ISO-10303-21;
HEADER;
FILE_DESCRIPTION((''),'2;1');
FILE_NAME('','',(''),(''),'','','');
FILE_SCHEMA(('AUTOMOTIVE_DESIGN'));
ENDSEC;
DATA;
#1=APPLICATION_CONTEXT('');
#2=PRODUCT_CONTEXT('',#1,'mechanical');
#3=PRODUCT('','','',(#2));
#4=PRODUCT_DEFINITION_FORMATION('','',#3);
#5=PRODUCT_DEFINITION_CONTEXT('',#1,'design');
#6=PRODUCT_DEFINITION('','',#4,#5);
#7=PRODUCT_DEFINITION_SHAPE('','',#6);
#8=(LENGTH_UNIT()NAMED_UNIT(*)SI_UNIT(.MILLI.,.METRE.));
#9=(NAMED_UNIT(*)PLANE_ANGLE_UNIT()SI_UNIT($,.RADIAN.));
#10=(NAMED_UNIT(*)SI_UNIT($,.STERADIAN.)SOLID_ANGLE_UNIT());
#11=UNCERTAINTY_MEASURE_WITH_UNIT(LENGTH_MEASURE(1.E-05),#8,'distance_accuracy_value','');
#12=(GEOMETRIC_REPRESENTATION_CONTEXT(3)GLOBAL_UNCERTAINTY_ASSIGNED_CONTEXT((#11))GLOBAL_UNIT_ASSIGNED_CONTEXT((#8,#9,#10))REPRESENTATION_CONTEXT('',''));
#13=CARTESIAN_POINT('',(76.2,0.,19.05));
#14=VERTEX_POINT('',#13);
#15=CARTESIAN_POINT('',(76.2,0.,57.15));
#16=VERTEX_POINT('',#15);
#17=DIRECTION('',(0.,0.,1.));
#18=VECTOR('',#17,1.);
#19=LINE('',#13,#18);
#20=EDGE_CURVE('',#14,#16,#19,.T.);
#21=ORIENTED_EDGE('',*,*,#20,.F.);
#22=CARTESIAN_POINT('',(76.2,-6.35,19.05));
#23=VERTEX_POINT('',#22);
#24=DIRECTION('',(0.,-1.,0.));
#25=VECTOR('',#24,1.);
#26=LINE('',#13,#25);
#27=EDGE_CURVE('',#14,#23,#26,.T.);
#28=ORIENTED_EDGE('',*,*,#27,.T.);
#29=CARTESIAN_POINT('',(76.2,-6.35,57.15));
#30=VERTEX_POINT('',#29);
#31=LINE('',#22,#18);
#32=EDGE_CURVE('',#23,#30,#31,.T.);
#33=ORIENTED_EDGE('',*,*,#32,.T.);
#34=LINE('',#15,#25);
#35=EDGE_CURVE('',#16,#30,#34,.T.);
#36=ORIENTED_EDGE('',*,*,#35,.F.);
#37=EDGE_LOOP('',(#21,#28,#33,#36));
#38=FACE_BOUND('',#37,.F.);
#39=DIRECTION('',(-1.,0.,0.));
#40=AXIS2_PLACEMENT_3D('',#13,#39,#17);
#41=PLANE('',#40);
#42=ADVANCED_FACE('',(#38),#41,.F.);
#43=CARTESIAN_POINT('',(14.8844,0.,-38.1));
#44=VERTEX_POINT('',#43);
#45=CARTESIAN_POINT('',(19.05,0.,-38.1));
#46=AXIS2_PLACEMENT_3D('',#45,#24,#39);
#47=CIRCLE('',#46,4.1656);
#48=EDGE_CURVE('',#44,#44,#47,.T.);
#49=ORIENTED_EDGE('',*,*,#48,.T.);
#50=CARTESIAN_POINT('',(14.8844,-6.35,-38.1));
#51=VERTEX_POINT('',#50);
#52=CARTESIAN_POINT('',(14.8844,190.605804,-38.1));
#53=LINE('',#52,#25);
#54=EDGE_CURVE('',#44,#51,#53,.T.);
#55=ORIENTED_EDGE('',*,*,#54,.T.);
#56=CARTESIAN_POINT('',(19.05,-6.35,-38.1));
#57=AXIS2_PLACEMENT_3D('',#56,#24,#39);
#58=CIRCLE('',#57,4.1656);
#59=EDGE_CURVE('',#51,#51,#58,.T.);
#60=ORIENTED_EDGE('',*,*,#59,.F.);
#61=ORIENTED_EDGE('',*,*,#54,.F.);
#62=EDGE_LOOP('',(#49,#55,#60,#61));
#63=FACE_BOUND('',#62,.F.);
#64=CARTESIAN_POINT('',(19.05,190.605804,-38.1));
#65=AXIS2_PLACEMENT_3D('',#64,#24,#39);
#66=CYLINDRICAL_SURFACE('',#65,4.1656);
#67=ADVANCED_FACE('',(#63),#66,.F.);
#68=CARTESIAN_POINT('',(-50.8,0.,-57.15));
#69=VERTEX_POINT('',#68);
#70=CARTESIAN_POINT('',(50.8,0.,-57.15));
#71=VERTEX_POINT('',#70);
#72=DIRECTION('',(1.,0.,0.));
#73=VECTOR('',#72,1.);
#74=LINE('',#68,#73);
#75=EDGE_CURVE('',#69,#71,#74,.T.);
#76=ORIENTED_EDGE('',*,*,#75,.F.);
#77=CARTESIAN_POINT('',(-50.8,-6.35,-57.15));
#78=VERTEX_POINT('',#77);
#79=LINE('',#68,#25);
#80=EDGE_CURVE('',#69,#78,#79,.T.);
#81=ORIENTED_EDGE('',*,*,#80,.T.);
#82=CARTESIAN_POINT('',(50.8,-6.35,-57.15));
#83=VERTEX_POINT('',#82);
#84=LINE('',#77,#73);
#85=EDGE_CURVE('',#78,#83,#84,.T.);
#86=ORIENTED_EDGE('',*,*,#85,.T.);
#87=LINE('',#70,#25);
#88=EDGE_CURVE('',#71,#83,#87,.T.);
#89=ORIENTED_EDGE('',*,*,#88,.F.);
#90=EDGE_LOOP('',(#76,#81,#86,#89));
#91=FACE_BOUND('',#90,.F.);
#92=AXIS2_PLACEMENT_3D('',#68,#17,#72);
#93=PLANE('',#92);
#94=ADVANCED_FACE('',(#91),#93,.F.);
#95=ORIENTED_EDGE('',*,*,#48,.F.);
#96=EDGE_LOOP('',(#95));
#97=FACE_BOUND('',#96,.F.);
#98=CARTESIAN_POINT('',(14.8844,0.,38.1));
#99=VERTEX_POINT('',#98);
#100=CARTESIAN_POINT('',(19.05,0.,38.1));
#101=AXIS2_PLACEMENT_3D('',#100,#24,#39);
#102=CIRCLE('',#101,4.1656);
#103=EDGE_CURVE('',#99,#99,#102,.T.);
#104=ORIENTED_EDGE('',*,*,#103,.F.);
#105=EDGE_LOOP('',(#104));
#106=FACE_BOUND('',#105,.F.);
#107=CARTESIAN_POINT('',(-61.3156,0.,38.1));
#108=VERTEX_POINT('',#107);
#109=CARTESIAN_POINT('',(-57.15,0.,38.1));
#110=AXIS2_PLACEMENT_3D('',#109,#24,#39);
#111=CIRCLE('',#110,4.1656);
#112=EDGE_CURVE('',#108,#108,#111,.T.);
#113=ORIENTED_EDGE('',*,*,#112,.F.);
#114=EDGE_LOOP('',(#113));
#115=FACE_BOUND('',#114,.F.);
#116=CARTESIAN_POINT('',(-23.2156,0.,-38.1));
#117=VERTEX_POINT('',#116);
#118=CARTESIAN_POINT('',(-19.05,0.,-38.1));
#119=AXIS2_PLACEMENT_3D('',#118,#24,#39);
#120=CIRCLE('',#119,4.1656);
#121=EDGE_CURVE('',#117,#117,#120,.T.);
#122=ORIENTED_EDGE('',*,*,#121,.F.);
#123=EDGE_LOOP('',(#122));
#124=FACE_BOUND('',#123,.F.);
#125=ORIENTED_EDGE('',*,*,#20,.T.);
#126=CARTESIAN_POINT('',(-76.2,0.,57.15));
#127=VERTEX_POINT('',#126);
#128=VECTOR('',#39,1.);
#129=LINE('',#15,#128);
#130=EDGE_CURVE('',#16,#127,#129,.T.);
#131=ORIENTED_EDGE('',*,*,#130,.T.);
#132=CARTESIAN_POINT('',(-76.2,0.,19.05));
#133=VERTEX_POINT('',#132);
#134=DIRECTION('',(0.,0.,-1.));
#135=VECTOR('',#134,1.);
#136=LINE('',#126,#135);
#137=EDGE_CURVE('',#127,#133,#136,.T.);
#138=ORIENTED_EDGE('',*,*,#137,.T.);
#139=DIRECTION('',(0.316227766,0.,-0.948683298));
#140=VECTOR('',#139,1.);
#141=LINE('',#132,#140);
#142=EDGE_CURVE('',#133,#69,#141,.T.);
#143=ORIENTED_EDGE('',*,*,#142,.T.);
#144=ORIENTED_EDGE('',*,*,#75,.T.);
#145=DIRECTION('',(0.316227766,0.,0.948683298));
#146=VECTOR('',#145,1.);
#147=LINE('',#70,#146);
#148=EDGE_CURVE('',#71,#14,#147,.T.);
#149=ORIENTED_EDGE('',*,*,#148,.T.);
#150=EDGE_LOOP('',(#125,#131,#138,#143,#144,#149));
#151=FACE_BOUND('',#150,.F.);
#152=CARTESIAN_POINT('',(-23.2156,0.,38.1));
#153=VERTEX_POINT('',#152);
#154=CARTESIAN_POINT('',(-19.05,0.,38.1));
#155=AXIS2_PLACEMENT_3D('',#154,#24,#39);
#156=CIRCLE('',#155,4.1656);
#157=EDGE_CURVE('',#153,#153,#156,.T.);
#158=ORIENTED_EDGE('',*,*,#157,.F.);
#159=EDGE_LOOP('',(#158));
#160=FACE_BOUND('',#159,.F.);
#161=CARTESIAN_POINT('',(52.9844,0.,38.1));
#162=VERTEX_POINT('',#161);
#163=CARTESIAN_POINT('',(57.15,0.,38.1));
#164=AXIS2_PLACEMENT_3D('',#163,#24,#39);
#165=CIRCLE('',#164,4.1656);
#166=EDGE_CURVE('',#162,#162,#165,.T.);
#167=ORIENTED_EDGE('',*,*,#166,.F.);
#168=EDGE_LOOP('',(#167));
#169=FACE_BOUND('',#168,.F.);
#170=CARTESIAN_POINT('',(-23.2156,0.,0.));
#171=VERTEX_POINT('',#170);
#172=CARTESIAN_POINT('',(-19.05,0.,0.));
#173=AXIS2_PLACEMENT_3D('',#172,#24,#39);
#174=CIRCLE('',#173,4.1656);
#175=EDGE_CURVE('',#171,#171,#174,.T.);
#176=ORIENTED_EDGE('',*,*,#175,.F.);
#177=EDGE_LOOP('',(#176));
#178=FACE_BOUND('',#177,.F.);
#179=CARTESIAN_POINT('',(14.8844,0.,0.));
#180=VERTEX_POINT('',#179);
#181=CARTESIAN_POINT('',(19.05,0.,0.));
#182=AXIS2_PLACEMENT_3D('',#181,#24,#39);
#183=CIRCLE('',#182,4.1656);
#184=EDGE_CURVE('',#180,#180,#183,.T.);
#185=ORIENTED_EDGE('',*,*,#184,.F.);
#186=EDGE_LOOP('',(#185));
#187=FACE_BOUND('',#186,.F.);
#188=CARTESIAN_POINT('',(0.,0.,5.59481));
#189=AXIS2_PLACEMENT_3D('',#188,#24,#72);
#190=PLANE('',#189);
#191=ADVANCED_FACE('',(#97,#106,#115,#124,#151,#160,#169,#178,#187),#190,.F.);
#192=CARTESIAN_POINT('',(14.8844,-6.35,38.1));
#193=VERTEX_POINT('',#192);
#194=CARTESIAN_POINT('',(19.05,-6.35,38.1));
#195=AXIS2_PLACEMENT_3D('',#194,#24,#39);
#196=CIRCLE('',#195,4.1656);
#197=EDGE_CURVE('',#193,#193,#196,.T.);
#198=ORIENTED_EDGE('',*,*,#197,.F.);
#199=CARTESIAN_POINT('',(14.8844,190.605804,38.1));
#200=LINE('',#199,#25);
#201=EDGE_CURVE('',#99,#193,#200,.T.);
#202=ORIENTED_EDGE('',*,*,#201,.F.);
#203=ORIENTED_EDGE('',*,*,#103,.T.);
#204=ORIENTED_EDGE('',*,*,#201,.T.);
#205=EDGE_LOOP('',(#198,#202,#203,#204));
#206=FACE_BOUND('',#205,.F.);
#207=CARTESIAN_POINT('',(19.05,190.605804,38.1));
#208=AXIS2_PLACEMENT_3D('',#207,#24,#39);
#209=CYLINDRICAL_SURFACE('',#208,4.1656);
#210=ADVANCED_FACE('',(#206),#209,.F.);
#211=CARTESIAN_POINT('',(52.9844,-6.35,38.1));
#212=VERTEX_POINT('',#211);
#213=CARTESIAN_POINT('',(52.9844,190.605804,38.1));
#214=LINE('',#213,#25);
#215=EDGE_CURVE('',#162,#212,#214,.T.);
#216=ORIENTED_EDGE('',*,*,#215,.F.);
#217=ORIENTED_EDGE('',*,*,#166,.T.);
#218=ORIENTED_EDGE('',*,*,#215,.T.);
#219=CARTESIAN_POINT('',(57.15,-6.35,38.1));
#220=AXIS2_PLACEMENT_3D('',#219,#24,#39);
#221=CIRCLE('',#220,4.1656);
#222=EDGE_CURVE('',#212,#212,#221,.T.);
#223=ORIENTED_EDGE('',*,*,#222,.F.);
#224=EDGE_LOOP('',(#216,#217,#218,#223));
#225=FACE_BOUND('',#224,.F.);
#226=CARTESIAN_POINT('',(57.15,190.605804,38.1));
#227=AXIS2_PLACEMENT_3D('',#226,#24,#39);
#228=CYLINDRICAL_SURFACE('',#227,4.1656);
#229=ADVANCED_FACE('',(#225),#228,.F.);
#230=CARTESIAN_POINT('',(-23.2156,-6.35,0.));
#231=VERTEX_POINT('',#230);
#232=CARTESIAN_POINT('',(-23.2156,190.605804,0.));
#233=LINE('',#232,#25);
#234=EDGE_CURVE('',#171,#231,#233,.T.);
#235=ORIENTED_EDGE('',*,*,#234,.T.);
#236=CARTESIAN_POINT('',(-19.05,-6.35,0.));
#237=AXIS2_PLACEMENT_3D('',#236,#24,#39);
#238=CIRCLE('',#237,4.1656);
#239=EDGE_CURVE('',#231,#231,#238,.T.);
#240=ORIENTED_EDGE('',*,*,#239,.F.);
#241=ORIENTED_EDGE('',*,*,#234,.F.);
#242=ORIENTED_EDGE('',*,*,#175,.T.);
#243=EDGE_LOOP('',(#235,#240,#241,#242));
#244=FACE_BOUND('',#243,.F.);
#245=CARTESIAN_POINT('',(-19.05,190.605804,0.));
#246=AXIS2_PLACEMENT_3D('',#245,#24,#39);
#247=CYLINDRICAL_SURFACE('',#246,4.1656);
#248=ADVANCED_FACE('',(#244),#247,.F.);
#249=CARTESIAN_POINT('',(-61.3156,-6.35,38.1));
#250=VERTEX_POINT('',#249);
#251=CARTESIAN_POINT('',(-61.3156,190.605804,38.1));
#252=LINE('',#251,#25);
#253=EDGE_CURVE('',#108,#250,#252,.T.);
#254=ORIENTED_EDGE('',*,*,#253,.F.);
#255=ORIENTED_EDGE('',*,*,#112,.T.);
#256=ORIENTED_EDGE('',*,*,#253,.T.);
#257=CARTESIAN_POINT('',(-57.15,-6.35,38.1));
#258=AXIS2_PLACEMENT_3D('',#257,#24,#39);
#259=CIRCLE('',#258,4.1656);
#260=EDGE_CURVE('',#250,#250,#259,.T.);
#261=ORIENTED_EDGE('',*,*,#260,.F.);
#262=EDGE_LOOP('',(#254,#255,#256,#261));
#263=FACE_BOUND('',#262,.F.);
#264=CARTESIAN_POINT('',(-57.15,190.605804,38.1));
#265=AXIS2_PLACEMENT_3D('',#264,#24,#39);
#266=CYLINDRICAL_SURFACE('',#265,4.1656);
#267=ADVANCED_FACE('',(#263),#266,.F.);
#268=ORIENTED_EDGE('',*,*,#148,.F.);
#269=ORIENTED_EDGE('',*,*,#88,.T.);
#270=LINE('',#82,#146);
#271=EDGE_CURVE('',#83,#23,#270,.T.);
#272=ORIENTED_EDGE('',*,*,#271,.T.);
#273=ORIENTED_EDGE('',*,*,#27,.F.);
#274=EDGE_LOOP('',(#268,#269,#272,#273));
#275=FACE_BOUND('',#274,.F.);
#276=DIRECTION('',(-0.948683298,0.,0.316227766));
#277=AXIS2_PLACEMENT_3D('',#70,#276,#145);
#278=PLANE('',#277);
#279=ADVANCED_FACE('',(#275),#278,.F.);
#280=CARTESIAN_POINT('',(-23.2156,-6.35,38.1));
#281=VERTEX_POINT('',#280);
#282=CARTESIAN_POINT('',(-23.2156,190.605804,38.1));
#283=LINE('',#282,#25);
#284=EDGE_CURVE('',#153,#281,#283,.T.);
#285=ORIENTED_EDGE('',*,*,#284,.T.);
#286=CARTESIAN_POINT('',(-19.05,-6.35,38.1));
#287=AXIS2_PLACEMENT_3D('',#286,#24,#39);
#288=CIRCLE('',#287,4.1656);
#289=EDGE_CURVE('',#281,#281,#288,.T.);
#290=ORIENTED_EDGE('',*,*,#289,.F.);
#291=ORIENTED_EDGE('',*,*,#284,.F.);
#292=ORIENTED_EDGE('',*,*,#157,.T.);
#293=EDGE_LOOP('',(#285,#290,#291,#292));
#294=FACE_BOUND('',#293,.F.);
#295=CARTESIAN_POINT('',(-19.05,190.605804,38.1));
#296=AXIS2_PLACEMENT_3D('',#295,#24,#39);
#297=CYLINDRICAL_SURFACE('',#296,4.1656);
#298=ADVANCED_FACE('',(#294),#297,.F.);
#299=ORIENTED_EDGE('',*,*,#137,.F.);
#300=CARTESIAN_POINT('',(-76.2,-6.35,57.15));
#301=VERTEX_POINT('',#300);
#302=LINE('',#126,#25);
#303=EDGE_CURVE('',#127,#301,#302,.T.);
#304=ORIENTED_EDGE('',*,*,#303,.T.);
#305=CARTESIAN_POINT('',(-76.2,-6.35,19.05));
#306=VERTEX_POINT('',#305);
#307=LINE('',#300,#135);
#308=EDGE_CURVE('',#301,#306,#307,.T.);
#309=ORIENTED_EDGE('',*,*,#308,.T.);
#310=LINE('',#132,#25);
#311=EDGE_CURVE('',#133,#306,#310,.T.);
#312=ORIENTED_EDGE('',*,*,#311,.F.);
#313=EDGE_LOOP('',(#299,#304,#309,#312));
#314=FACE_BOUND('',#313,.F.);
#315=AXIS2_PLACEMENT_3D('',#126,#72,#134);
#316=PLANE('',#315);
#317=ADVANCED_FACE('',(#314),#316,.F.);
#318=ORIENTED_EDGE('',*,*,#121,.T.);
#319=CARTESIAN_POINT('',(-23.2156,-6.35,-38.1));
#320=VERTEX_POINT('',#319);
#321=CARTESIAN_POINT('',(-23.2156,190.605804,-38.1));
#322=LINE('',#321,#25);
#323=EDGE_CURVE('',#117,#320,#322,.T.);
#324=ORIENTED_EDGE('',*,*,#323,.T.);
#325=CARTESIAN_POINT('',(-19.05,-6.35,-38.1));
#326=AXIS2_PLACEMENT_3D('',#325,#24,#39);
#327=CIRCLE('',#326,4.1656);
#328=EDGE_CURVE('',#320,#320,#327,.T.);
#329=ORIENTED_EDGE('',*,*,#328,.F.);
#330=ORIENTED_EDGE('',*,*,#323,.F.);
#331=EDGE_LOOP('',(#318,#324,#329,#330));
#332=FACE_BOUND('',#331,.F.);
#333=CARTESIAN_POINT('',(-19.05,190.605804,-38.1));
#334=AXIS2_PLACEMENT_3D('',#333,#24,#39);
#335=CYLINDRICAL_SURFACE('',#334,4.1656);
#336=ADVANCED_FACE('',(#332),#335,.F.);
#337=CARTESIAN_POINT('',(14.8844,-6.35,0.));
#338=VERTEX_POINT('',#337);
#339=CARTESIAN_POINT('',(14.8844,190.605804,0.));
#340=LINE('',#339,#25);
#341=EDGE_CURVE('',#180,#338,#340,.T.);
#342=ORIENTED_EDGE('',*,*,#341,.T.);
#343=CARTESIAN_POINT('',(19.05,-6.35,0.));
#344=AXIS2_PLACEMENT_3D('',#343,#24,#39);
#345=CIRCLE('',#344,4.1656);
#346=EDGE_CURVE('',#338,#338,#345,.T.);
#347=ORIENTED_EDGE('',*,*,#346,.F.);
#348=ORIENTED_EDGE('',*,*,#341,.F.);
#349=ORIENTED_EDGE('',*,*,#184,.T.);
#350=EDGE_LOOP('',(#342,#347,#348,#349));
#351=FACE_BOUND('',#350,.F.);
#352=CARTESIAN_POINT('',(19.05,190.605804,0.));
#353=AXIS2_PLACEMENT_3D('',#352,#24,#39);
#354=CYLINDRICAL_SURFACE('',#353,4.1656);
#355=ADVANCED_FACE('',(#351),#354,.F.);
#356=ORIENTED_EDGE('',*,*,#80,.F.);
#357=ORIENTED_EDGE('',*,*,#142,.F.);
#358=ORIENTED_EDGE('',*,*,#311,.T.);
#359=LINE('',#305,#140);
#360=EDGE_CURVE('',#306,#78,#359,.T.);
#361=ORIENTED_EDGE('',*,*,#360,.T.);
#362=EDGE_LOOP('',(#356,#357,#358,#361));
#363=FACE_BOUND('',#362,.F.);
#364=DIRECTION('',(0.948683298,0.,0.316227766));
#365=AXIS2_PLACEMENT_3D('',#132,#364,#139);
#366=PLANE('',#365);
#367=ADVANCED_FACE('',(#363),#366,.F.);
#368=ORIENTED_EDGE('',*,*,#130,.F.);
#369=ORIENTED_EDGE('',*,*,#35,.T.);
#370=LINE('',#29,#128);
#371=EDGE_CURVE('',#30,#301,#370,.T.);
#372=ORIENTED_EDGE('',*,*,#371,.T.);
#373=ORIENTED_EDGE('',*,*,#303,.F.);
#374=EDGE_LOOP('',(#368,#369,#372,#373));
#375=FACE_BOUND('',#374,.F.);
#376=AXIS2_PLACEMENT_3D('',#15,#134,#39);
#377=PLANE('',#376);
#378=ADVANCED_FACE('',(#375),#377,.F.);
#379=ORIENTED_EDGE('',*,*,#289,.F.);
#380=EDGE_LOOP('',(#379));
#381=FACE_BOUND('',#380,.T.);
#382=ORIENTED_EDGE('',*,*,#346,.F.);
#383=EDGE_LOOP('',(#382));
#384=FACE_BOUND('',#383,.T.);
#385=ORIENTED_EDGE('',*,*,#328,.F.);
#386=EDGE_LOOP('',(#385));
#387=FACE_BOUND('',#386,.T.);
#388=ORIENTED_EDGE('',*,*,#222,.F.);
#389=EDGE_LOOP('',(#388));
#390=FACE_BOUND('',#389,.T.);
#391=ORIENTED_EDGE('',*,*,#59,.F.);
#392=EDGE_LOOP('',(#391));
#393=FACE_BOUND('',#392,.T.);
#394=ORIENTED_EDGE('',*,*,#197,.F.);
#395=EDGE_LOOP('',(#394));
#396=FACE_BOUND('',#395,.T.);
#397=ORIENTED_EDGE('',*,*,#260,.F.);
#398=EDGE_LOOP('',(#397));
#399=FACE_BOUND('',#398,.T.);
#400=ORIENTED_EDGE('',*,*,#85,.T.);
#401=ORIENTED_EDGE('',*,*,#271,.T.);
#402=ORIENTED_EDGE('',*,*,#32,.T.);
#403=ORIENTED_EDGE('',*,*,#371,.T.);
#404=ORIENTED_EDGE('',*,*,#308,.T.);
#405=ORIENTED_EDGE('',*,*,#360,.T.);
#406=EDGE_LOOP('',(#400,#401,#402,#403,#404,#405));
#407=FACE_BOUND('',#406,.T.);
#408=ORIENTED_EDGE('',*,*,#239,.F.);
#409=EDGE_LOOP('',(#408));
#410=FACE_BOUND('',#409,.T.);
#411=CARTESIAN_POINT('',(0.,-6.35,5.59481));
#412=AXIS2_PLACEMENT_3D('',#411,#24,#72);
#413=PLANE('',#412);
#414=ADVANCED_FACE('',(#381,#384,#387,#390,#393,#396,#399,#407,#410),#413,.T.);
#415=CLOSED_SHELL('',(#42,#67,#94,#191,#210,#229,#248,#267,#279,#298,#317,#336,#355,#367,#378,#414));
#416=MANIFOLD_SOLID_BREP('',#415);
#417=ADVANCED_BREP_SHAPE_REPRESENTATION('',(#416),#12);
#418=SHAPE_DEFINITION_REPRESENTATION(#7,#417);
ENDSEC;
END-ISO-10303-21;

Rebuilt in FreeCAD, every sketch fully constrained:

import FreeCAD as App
import Part
import Sketcher

V = App.Vector
Q = App.Units.Quantity


def add_polygon(sketch, points):
    """Adds a closed chain of lines whose ends are joined by coincident constraints."""
    first, n = sketch.GeometryCount, len(points)
    for a, b in zip(points, points[1:] + points[:1]):
        sketch.addGeometry(Part.LineSegment(App.Vector(*a, 0), App.Vector(*b, 0)), False)
    for i in range(n):
        sketch.addConstraint(Sketcher.Constraint("Coincident", first + i, 2, first + (i + 1) % n, 1))

doc = App.newDocument("Part")
body = doc.addObject("PartDesign::Body", "Body")

sketch1 = body.newObject("Sketcher::SketchObject", "Sketch")
sketch1.AttachmentSupport = (doc.getObject("XZ_Plane"), [""])
sketch1.MapMode = "FlatFace"
add_polygon(sketch1, [(76, 57), (-76, 57), (-76, 19), (-51, -57), (51, -57), (76, 19)])
sketch1.addConstraint([
    Sketcher.Constraint("Horizontal", 0),
    Sketcher.Constraint("Vertical", 1),
    Sketcher.Constraint("Horizontal", 3),
    Sketcher.Constraint("Vertical", 5),
    Sketcher.Constraint("Symmetric", 1, 2, 4, 2, -2),
    Sketcher.Constraint("Equal", 2, 4),
    Sketcher.Constraint("DistanceX", 0, 2, 0, 1, Q("6 in")),
    Sketcher.Constraint("DistanceX", 3, 1, 3, 2, Q("4 in")),
    Sketcher.Constraint("DistanceY", 1, 2, 1, 1, Q("1.5 in")),
    Sketcher.Constraint("DistanceY", 2, 2, 1, 2, Q("3 in")),
    Sketcher.Constraint("DistanceY", -1, 1, 0, 2, Q("2.25 in")),
])
pad1 = body.newObject("PartDesign::Pad", "Pad")
pad1.Profile = sketch1
pad1.Length = Q("0.25 in")

sketch2 = body.newObject("Sketcher::SketchObject", "Sketch001")
sketch2.AttachmentSupport = (doc.getObject("XZ_Plane"), [""])
sketch2.MapMode = "FlatFace"
sketch2.addGeometry(Part.Circle(V(57.1, 38.1, 0), V(0, 0, 1), 4.2), False)
sketch2.addConstraint([
    Sketcher.Constraint("Diameter", 0, Q("0.328 in")),
    Sketcher.Constraint("DistanceY", -1, 1, 0, 3, Q("1.5 in")),
    Sketcher.Constraint("DistanceX", -1, 1, 0, 3, Q("2.25 in")),
])
doc.recompute()
hole = body.newObject("PartDesign::Hole", "Hole")
hole.Profile = sketch2
hole.ThreadType = "None"
hole.Diameter = Q("0.328 in")
hole.DepthType = "ThroughAll"
hole.Reversed = True

sketch3 = body.newObject("Sketcher::SketchObject", "Sketch002")
sketch3.AttachmentSupport = (doc.getObject("XZ_Plane"), [""])
sketch3.MapMode = "FlatFace"
sketch3.addGeometry(Part.Circle(V(19.1, 38.1, 0), V(0, 0, 1), 4.2), False)
sketch3.addConstraint([
    Sketcher.Constraint("Diameter", 0, Q("0.328 in")),
    Sketcher.Constraint("DistanceY", -1, 1, 0, 3, Q("1.5 in")),
    Sketcher.Constraint("DistanceX", -1, 1, 0, 3, Q("0.75 in")),
])
doc.recompute()
hole2 = body.newObject("PartDesign::Hole", "Hole001")
hole2.Profile = sketch3
hole2.ThreadType = "None"
hole2.Diameter = Q("0.328 in")
hole2.DepthType = "ThroughAll"
hole2.Reversed = True

sketch4 = body.newObject("Sketcher::SketchObject", "Sketch003")
sketch4.AttachmentSupport = (doc.getObject("XZ_Plane"), [""])
sketch4.MapMode = "FlatFace"
sketch4.addGeometry(Part.Circle(V(-19.1, 38.1, 0), V(0, 0, 1), 4.2), False)
sketch4.addConstraint([
    Sketcher.Constraint("Diameter", 0, Q("0.328 in")),
    Sketcher.Constraint("DistanceY", -1, 1, 0, 3, Q("1.5 in")),
    Sketcher.Constraint("DistanceX", 0, 3, -1, 1, Q("0.75 in")),
])
doc.recompute()
hole3 = body.newObject("PartDesign::Hole", "Hole002")
hole3.Profile = sketch4
hole3.ThreadType = "None"
hole3.Diameter = Q("0.328 in")
hole3.DepthType = "ThroughAll"
hole3.Reversed = True

sketch5 = body.newObject("Sketcher::SketchObject", "Sketch004")
sketch5.AttachmentSupport = (doc.getObject("XZ_Plane"), [""])
sketch5.MapMode = "FlatFace"
sketch5.addGeometry(Part.Circle(V(-57.1, 38.1, 0), V(0, 0, 1), 4.2), False)
sketch5.addConstraint([
    Sketcher.Constraint("Diameter", 0, Q("0.328 in")),
    Sketcher.Constraint("DistanceY", -1, 1, 0, 3, Q("1.5 in")),
    Sketcher.Constraint("DistanceX", 0, 3, -1, 1, Q("2.25 in")),
])
doc.recompute()
hole4 = body.newObject("PartDesign::Hole", "Hole003")
hole4.Profile = sketch5
hole4.ThreadType = "None"
hole4.Diameter = Q("0.328 in")
hole4.DepthType = "ThroughAll"
hole4.Reversed = True

sketch6 = body.newObject("Sketcher::SketchObject", "Sketch005")
sketch6.AttachmentSupport = (doc.getObject("XZ_Plane"), [""])
sketch6.MapMode = "FlatFace"
sketch6.addGeometry(Part.Circle(V(-19.1, 0, 0), V(0, 0, 1), 4.2), False)
sketch6.addConstraint([
    Sketcher.Constraint("PointOnObject", 0, 3, -1),
    Sketcher.Constraint("Diameter", 0, Q("0.328 in")),
    Sketcher.Constraint("DistanceX", 0, 3, -1, 1, Q("0.75 in")),
])
doc.recompute()
hole5 = body.newObject("PartDesign::Hole", "Hole004")
hole5.Profile = sketch6
hole5.ThreadType = "None"
hole5.Diameter = Q("0.328 in")
hole5.DepthType = "ThroughAll"
hole5.Reversed = True

sketch7 = body.newObject("Sketcher::SketchObject", "Sketch006")
sketch7.AttachmentSupport = (doc.getObject("XZ_Plane"), [""])
sketch7.MapMode = "FlatFace"
sketch7.addGeometry(Part.Circle(V(19.1, 0, 0), V(0, 0, 1), 4.2), False)
sketch7.addConstraint([
    Sketcher.Constraint("PointOnObject", 0, 3, -1),
    Sketcher.Constraint("Diameter", 0, Q("0.328 in")),
    Sketcher.Constraint("DistanceX", -1, 1, 0, 3, Q("0.75 in")),
])
doc.recompute()
hole6 = body.newObject("PartDesign::Hole", "Hole005")
hole6.Profile = sketch7
hole6.ThreadType = "None"
hole6.Diameter = Q("0.328 in")
hole6.DepthType = "ThroughAll"
hole6.Reversed = True

sketch8 = body.newObject("Sketcher::SketchObject", "Sketch007")
sketch8.AttachmentSupport = (doc.getObject("XZ_Plane"), [""])
sketch8.MapMode = "FlatFace"
sketch8.addGeometry(Part.Circle(V(-19.1, -38.1, 0), V(0, 0, 1), 4.2), False)
sketch8.addConstraint([
    Sketcher.Constraint("Diameter", 0, Q("0.328 in")),
    Sketcher.Constraint("DistanceY", 0, 3, -1, 1, Q("1.5 in")),
    Sketcher.Constraint("DistanceX", 0, 3, -1, 1, Q("0.75 in")),
])
doc.recompute()
hole7 = body.newObject("PartDesign::Hole", "Hole006")
hole7.Profile = sketch8
hole7.ThreadType = "None"
hole7.Diameter = Q("0.328 in")
hole7.DepthType = "ThroughAll"
hole7.Reversed = True

sketch9 = body.newObject("Sketcher::SketchObject", "Sketch008")
sketch9.AttachmentSupport = (doc.getObject("XZ_Plane"), [""])
sketch9.MapMode = "FlatFace"
sketch9.addGeometry(Part.Circle(V(19.1, -38.1, 0), V(0, 0, 1), 4.2), False)
sketch9.addConstraint([
    Sketcher.Constraint("Diameter", 0, Q("0.328 in")),
    Sketcher.Constraint("DistanceY", 0, 3, -1, 1, Q("1.5 in")),
    Sketcher.Constraint("DistanceX", -1, 1, 0, 3, Q("0.75 in")),
])
doc.recompute()
hole8 = body.newObject("PartDesign::Hole", "Hole007")
hole8.Profile = sketch9
hole8.ThreadType = "None"
hole8.Diameter = Q("0.328 in")
hole8.DepthType = "ThroughAll"
hole8.Reversed = True

doc.recompute()
